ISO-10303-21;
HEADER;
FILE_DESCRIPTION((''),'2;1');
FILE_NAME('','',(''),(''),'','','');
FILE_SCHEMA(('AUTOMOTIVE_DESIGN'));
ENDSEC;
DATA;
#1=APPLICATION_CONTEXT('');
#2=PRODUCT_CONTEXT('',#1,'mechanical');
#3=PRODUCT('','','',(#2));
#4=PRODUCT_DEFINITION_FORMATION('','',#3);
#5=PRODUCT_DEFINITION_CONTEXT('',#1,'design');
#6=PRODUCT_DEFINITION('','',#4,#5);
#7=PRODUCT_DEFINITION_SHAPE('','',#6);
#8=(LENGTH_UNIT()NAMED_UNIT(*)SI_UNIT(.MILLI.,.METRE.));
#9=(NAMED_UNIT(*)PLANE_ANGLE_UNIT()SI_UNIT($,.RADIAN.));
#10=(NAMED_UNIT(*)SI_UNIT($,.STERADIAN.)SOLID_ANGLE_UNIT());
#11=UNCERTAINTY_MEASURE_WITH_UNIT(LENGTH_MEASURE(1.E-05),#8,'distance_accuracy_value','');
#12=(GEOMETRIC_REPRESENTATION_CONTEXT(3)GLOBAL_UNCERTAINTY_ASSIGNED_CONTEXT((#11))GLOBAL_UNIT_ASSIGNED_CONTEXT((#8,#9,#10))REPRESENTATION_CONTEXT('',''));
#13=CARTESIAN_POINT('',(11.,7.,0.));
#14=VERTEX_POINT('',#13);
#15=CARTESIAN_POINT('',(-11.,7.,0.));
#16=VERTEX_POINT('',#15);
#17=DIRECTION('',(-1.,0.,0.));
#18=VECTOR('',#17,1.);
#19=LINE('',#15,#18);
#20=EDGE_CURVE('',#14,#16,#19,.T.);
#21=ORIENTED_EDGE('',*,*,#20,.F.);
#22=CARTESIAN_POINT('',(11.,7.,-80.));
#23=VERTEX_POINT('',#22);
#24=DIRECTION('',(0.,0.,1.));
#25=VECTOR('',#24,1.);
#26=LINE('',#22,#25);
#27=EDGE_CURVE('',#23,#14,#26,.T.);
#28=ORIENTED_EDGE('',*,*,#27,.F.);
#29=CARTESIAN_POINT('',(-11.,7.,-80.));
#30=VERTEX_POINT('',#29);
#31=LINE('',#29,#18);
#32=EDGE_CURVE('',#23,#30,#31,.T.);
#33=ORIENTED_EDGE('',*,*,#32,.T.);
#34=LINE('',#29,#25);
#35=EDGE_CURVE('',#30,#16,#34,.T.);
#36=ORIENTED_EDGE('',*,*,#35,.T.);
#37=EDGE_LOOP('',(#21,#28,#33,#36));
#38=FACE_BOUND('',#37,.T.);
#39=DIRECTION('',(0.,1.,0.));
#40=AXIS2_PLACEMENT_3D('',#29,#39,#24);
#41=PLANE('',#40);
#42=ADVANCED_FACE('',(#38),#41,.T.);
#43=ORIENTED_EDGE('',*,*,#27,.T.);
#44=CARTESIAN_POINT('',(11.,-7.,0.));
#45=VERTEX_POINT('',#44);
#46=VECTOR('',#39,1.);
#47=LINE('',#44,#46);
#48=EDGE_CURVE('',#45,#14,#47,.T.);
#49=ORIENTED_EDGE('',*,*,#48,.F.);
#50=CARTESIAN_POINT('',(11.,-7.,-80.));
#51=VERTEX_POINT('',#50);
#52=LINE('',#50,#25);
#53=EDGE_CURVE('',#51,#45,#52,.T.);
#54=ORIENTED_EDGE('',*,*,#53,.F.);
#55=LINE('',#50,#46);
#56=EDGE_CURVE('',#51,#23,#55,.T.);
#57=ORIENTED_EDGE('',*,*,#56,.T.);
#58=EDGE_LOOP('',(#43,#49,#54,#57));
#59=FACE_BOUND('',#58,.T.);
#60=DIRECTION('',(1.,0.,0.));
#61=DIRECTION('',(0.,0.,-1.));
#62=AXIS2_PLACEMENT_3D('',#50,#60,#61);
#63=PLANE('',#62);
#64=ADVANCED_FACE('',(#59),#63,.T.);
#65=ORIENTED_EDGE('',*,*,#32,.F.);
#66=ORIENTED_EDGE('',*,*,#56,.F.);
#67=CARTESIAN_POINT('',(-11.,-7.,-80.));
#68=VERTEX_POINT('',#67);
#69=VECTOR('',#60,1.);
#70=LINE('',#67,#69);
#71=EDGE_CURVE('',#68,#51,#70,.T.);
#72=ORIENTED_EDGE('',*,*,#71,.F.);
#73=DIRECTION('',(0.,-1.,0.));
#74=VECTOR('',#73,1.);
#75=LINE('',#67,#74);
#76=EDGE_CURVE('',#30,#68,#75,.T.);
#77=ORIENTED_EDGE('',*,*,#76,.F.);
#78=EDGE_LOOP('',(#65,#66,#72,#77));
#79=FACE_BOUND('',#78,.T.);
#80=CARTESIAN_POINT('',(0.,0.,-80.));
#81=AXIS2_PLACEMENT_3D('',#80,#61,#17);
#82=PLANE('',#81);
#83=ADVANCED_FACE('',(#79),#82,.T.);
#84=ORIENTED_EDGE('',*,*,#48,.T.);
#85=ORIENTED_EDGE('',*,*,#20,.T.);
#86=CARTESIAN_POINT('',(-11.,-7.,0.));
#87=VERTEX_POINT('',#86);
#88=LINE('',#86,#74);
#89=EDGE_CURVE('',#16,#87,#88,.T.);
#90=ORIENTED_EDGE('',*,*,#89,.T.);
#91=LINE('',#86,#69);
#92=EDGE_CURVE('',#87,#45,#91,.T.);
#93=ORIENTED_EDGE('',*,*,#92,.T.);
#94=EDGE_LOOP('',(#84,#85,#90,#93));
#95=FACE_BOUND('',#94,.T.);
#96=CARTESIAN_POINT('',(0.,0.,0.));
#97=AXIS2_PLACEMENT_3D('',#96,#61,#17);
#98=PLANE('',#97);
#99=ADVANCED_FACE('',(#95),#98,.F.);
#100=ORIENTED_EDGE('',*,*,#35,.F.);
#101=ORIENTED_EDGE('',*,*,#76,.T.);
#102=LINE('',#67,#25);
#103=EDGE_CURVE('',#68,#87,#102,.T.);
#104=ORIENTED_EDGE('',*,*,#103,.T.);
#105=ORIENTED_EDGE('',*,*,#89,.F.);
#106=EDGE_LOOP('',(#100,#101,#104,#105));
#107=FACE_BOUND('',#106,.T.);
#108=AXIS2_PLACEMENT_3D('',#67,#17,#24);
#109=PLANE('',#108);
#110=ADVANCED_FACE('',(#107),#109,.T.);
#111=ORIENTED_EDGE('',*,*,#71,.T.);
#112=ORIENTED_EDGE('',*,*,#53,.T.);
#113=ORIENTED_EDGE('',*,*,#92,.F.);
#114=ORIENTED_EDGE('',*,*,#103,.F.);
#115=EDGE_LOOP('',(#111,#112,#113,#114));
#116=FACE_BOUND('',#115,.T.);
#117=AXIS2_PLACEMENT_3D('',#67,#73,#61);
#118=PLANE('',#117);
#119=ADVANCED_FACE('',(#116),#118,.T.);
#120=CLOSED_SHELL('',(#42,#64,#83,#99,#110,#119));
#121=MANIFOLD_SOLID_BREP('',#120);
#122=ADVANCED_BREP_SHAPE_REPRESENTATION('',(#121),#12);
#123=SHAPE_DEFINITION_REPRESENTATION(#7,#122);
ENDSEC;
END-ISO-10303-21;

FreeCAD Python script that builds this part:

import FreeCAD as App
import Part
import Sketcher


def add_polygon(sketch, points):
    """Adds a closed chain of lines whose ends are joined by coincident constraints."""
    first, n = sketch.GeometryCount, len(points)
    for a, b in zip(points, points[1:] + points[:1]):
        sketch.addGeometry(Part.LineSegment(App.Vector(*a, 0), App.Vector(*b, 0)), False)
    for i in range(n):
        sketch.addConstraint(Sketcher.Constraint("Coincident", first + i, 2, first + (i + 1) % n, 1))

doc = App.newDocument("Part")
body = doc.addObject("PartDesign::Body", "Body")

# Sketch on XY plane
sketch1 = body.newObject("Sketcher::SketchObject", "Sketch")
sketch1.AttachmentSupport = (doc.getObject("XY_Plane"), [""])
sketch1.MapMode = "FlatFace"
add_polygon(sketch1, [(-11, 7), (-11, -7), (11, -7), (11, 7)])  # lines 0-3
sketch1.addConstraint([
    Sketcher.Constraint("Vertical", 0),
    Sketcher.Constraint("Horizontal", 1),
    Sketcher.Constraint("Vertical", 2),
    Sketcher.Constraint("Horizontal", 3),
    Sketcher.Constraint("Symmetric", 0, 2, 2, 2, -1, 1),
    Sketcher.Constraint("DistanceX", 1, 1, 1, 2, 22.0),
    Sketcher.Constraint("DistanceY", 0, 2, 0, 1, 14.0),
])
pad1 = body.newObject("PartDesign::Pad", "Pad")
pad1.Profile = sketch1
pad1.Length = 80
pad1.Reversed = True

doc.recompute()
